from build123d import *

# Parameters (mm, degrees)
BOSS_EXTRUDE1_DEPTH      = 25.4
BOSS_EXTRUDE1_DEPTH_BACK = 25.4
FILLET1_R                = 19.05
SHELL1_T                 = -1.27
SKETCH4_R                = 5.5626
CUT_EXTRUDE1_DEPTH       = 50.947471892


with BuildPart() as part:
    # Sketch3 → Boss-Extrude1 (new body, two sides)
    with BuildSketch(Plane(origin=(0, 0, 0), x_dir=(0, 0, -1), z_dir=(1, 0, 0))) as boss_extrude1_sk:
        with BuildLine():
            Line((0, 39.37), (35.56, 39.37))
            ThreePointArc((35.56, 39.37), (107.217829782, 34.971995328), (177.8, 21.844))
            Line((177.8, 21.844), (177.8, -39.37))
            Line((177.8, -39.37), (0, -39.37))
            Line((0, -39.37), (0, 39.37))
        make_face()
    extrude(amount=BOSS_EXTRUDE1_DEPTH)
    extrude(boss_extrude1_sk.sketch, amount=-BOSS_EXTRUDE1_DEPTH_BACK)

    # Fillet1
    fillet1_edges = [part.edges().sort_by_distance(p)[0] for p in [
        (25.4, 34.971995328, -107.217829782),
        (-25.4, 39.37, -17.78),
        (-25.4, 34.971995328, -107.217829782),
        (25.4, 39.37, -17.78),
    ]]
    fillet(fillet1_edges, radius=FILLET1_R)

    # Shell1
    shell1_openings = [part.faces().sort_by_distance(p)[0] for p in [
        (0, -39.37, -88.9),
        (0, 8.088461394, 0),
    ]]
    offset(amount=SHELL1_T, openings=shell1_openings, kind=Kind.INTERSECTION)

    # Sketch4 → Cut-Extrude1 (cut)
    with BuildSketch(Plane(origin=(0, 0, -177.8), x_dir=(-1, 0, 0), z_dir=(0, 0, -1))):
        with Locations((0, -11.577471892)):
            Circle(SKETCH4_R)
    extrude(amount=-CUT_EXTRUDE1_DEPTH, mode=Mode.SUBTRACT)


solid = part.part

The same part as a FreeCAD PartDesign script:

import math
import FreeCAD as App
import Part
import Sketcher

V = App.Vector
Q = App.Units.Quantity


def edges_at(feature, points):
    """Names of the edges that pass closest to the given points."""
    edges = feature.Shape.Edges
    near = lambda p: min(range(len(edges)), key=lambda i: edges[i].distToShape(Part.Vertex(*p))[0])
    return sorted({f"Edge{near(p) + 1}" for p in points})


def faces_at(feature, points):
    """Names of the faces that lie closest to the given points."""
    faces = feature.Shape.Faces
    near = lambda p: min(range(len(faces)), key=lambda i: faces[i].distToShape(Part.Vertex(*p))[0])
    return sorted({f"Face{near(p) + 1}" for p in points})

doc = App.newDocument("Part")
body = doc.addObject("PartDesign::Body", "Body")

# Sketch on YZ plane
sketch1 = doc.addObject("Sketcher::SketchObject", "Sketch")
body.addObject(sketch1)
sketch1.AttachmentSupport = (doc.YZ_Plane, [""])
sketch1.MapMode = "FlatFace"
sketch1.addGeometry(Part.LineSegment(V(39.37, -35.56, 0), V(39.37, 0, 0)), False)
sketch1.addGeometry(Part.LineSegment(V(39.37, 0, 0), V(-39.37, 0, 0)), False)
sketch1.addGeometry(Part.LineSegment(V(-39.37, 0, 0), V(-39.37, -177.8, 0)), False)
sketch1.addGeometry(Part.LineSegment(V(-39.37, -177.8, 0), V(21.844, -177.8, 0)), False)
sketch1.addGeometry(Part.ArcOfCircle(Part.Circle(V(-546.598797, -35.56, 0), V(0, 0, 1), 585.968797), math.radians(-14.048509), math.radians(0)), False)
sketch1.addConstraint(Sketcher.Constraint("Coincident", 0, 2, 1, 1))
sketch1.addConstraint(Sketcher.Constraint("Coincident", 1, 2, 2, 1))
sketch1.addConstraint(Sketcher.Constraint("Coincident", 2, 2, 3, 1))
sketch1.addConstraint(Sketcher.Constraint("Coincident", 3, 2, 4, 1))
sketch1.addConstraint(Sketcher.Constraint("Tangent", 4, 2, 0, 1))
sketch1.addConstraint(Sketcher.Constraint("Vertical", 0))
sketch1.addConstraint(Sketcher.Constraint("Horizontal", 1))
sketch1.addConstraint(Sketcher.Constraint("Vertical", 2))
sketch1.addConstraint(Sketcher.Constraint("Horizontal", 3))
sketch1.addConstraint(Sketcher.Constraint("Symmetric", 0, 2, 1, 2, -1, 1))
sketch1.addConstraint(Sketcher.Constraint("DistanceY", 2, 2, 2, 1, Q("7 in")))
sketch1.addConstraint(Sketcher.Constraint("DistanceX", 1, 2, 1, 1, Q("3.1 in")))
sketch1.addConstraint(Sketcher.Constraint("DistanceY", 0, 1, 0, 2, Q("1.4 in")))
sketch1.addConstraint(Sketcher.Constraint("DistanceX", 3, 1, 3, 2, Q("2.41 in")))
pad1 = doc.addObject("PartDesign::Pad", "Pad")
body.addObject(pad1)
pad1.Profile = sketch1
pad1.Type = "TwoLengths"
pad1.Length = Q("1 in")
pad1.Length2 = Q("1 in")
doc.recompute()

fillet = doc.addObject("PartDesign::Fillet", "Fillet")
body.addObject(fillet)
fillet.Base = (pad1, edges_at(pad1, [
    (25.4, 34.972, -107.218),
    (-25.4, 39.37, -17.78),
    (-25.4, 34.972, -107.218),
    (25.4, 39.37, -17.78),
]))
fillet.Radius = Q("0.75 in")
doc.recompute()

thickness = doc.addObject("PartDesign::Thickness", "Thickness")
body.addObject(thickness)
thickness.Base = (fillet, faces_at(fillet, [(0, -39.37, -88.9), (0, 0, 0)]))
thickness.Value = Q("0.05 in")
thickness.Reversed = True
thickness.Join = "Intersection"

# Sketch on XY plane
sketch2 = doc.addObject("Sketcher::SketchObject", "Sketch001")
body.addObject(sketch2)
sketch2.AttachmentSupport = (doc.XY_Plane, [""])
sketch2.MapMode = "FlatFace"
sketch2.AttachmentOffset = App.Placement(V(0, 0, -7 * 25.4), App.Rotation())
sketch2.addGeometry(Part.Circle(V(0, -11.577472, 0), V(0, 0, 1), 5.5626), False)
sketch2.addConstraint(Sketcher.Constraint("PointOnObject", 0, 3, -2))
sketch2.addConstraint(Sketcher.Constraint("Diameter", 0, Q("0.438 in")))
sketch2.addConstraint(Sketcher.Constraint("DistanceY", 0, 3, -1, 1, Q("11.577472 mm")))
pocket1 = doc.addObject("PartDesign::Pocket", "Pocket")
body.addObject(pocket1)
pocket1.Profile = sketch2
pocket1.Length = 50.947472
pocket1.Reversed = True

doc.recompute()
